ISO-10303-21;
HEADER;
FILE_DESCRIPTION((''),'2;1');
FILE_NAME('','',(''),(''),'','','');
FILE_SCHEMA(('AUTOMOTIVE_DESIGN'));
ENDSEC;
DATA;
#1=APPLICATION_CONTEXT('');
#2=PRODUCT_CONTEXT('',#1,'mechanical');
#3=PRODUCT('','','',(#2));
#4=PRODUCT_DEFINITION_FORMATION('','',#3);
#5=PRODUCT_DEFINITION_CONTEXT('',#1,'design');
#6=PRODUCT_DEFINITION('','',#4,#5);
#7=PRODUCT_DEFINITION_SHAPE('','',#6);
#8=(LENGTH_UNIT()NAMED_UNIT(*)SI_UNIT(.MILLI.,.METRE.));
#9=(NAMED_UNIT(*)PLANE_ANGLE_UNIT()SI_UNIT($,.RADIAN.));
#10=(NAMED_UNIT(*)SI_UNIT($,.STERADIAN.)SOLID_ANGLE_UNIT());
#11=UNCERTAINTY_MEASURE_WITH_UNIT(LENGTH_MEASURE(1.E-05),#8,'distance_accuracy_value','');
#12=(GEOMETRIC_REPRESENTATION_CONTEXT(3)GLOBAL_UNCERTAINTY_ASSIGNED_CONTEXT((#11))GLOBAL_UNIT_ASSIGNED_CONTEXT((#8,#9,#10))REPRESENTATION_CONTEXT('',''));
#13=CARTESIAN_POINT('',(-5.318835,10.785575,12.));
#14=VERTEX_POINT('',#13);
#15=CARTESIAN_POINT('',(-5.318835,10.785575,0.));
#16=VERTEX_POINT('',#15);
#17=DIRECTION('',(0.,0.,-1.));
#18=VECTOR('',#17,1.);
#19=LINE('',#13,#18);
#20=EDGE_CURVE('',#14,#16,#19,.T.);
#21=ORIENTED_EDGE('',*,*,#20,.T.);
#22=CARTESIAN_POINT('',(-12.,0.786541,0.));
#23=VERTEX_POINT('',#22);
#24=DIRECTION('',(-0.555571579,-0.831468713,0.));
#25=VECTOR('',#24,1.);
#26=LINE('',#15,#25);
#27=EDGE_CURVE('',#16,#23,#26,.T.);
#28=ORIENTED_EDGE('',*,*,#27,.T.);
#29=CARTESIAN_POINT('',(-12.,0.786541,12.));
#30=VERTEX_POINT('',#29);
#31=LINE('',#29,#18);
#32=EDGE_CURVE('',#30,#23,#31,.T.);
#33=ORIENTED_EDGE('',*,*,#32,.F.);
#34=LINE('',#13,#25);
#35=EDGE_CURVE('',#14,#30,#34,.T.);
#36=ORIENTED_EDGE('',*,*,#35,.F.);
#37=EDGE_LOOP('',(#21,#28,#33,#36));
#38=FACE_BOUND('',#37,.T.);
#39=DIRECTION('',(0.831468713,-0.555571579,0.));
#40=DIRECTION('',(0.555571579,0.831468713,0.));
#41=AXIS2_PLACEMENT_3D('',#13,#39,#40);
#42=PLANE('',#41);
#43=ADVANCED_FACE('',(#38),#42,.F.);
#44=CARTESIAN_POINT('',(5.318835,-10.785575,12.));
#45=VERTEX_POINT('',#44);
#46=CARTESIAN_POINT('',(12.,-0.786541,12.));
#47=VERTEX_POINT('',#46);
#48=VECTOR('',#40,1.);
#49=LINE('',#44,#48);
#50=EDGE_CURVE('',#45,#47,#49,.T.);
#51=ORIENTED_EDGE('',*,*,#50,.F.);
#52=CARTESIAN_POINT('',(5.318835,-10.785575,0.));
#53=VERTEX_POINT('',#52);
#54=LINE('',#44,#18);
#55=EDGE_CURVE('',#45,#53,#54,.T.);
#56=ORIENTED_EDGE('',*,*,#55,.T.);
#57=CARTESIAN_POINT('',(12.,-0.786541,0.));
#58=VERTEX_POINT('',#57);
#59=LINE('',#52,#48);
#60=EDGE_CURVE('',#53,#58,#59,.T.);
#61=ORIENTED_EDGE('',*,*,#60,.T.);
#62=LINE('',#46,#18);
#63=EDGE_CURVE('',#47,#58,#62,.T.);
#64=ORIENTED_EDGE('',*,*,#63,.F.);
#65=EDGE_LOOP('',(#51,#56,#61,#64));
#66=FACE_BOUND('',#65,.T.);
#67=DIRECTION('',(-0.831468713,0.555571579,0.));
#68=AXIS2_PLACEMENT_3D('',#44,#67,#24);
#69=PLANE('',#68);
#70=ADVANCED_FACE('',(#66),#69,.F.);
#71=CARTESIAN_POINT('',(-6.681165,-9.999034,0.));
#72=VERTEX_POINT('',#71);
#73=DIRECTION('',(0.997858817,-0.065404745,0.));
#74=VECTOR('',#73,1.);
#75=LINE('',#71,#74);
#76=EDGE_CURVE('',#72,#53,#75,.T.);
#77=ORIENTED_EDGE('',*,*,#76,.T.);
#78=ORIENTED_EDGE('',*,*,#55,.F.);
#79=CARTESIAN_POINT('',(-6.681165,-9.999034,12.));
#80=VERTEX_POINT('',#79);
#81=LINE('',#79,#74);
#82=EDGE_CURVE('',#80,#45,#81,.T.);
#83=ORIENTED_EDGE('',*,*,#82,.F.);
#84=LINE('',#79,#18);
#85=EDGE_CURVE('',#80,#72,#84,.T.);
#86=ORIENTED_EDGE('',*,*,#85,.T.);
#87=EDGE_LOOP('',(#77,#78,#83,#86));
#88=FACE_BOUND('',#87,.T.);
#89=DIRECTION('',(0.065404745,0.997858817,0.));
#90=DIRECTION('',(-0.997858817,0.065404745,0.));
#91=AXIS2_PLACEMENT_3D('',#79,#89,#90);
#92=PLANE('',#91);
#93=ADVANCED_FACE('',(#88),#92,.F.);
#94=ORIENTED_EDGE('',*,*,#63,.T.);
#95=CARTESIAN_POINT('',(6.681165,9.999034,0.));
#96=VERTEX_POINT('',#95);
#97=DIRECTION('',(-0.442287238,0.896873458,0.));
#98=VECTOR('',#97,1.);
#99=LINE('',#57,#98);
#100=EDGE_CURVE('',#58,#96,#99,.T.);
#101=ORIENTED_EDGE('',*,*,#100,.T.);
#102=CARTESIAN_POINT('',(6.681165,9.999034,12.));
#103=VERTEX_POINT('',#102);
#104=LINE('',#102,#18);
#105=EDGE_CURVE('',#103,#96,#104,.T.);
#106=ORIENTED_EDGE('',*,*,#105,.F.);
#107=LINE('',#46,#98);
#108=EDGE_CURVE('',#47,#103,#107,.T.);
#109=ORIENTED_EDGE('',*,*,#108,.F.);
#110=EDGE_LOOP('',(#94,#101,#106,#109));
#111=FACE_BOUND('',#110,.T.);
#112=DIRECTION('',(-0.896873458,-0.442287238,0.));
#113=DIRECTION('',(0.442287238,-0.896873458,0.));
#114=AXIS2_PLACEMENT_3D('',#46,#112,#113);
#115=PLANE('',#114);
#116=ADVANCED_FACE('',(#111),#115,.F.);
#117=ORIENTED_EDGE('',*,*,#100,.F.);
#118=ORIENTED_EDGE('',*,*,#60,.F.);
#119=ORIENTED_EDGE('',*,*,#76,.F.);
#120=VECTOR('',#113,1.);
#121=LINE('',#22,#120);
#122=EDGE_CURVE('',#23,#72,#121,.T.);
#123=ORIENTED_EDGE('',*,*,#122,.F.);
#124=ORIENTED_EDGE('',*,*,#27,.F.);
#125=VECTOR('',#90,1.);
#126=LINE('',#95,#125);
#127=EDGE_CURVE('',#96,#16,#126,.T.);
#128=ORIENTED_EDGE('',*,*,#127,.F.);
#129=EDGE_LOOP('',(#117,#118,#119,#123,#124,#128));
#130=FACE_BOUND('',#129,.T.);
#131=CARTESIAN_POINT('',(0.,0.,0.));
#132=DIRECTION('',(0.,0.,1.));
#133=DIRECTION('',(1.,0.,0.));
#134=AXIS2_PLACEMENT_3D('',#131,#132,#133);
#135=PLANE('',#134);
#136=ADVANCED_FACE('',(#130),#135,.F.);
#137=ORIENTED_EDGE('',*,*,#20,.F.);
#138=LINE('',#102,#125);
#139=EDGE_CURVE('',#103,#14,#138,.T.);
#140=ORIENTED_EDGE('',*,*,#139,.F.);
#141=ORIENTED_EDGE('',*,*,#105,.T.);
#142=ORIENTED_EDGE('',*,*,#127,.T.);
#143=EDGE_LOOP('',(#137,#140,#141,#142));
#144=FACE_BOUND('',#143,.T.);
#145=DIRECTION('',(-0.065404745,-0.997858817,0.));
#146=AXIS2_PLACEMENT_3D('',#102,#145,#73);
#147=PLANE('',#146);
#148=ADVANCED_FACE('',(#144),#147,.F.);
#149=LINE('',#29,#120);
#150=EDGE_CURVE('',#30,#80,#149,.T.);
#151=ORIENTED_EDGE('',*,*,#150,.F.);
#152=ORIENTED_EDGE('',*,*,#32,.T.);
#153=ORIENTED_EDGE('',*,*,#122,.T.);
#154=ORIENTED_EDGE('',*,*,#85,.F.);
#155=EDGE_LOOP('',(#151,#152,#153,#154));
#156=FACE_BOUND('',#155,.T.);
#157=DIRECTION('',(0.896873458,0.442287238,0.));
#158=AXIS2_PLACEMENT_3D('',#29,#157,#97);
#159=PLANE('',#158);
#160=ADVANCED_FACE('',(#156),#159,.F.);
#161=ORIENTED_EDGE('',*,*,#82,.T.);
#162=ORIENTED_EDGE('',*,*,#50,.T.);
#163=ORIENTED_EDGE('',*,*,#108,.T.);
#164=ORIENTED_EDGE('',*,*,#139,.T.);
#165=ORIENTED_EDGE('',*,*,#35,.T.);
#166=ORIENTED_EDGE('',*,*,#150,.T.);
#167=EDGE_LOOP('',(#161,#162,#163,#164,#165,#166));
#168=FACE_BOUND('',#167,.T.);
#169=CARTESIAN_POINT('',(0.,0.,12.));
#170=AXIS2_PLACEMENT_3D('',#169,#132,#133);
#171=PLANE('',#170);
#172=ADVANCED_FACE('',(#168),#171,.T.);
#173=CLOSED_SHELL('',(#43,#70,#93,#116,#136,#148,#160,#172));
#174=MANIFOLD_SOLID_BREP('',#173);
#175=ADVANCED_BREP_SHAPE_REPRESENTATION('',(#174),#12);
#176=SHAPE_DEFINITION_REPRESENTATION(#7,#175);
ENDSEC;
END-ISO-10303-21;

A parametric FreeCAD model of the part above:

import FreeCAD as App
import Part
import Sketcher

V = App.Vector

doc = App.newDocument("Part")
body = doc.addObject("PartDesign::Body", "Body")

sketch1 = body.newObject("Sketcher::SketchObject", "Sketch")
sketch1.AttachmentSupport = (doc.getObject("XY_Plane"), [""])
sketch1.MapMode = "FlatFace"
sketch1.addGeometry([
    Part.LineSegment(V(7, 10, 0), V(-5, 11, 0)),
    Part.LineSegment(V(-5, 11, 0), V(-12, 1, 0)),
    Part.LineSegment(V(-12, 1, 0), V(-7, -10, 0)),
    Part.LineSegment(V(-7, -10, 0), V(5, -11, 0)),
    Part.LineSegment(V(5, -11, 0), V(12, -1, 0)),
    Part.LineSegment(V(12, -1, 0), V(7, 10, 0)),
], False)
sketch1.addConstraint([
    Sketcher.Constraint("Coincident", 0, 2, 1, 1),
    Sketcher.Constraint("Coincident", 1, 2, 2, 1),
    Sketcher.Constraint("Coincident", 2, 2, 3, 1),
    Sketcher.Constraint("Coincident", 3, 2, 4, 1),
    Sketcher.Constraint("Coincident", 4, 2, 5, 1),
    Sketcher.Constraint("Coincident", 5, 2, 0, 1),
    Sketcher.Constraint("Symmetric", 0, 2, 3, 2, -1, 1),
    Sketcher.Constraint("Symmetric", 1, 2, 4, 2, -1, 1),
    Sketcher.Constraint("Symmetric", 2, 2, 5, 2, -1, 1),
    Sketcher.Constraint("Equal", 0, 1),
    Sketcher.Constraint("Equal", 1, 2),
    Sketcher.Constraint("DistanceX", 1, 2, -1, 1, 12.0),
    Sketcher.Constraint("DistanceX", 2, 2, 3, 2, 12.0),
    Sketcher.Constraint("Distance", 0, 12.025749),
    Sketcher.Constraint("DistanceY", -1, 1, 1, 2, 0.786541),
])
pad1 = body.newObject("PartDesign::Pad", "Pad")
pad1.Profile = sketch1
pad1.Length = 12

doc.recompute()
